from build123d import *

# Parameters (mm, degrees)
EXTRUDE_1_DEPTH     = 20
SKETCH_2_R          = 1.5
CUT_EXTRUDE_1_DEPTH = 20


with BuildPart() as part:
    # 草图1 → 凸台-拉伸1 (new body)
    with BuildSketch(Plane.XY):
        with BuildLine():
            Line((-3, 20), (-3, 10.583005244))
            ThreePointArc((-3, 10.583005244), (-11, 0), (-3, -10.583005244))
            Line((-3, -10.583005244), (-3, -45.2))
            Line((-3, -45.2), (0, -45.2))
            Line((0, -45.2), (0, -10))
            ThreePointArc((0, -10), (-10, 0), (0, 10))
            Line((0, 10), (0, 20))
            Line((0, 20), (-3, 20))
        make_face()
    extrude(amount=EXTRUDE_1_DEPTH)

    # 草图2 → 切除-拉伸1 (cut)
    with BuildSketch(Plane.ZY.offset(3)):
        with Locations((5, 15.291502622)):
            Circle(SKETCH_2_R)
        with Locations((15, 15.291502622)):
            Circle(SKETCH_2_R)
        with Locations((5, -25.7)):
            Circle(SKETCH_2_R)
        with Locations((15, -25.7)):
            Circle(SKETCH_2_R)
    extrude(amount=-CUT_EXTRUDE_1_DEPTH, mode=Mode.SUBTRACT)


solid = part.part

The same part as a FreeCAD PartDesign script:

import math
import FreeCAD as App
import Part
import Sketcher

doc = App.newDocument("Part")
body = doc.addObject("PartDesign::Body", "Body")

# Sketch on XY plane
sketch1 = body.newObject("Sketcher::SketchObject", "Sketch")
sketch1.AttachmentSupport = (doc.getObject("XY_Plane"), [""])
sketch1.MapMode = "FlatFace"
sketch1.addGeometry(Part.LineSegment(App.Vector(-3, 20, 0), App.Vector(-3, 10.583005, 0)), False)
sketch1.addGeometry(Part.ArcOfCircle(Part.Circle(App.Vector(0, 0, 0), App.Vector(0, 0, 1), 11), math.radians(105.82662), math.radians(254.17338)), False)
sketch1.addGeometry(Part.LineSegment(App.Vector(-3, -10.583005, 0), App.Vector(-3, -45.2, 0)), False)
sketch1.addGeometry(Part.LineSegment(App.Vector(-3, -45.2, 0), App.Vector(0, -45.2, 0)), False)
sketch1.addGeometry(Part.LineSegment(App.Vector(0, -45.2, 0), App.Vector(0, -10, 0)), False)
sketch1.addGeometry(Part.ArcOfCircle(Part.Circle(App.Vector(0, 0, 0), App.Vector(0, 0, 1), 10), math.radians(90), math.radians(270)), False)
sketch1.addGeometry(Part.LineSegment(App.Vector(0, 10, 0), App.Vector(0, 20, 0)), False)
sketch1.addGeometry(Part.LineSegment(App.Vector(0, 20, 0), App.Vector(-3, 20, 0)), False)
sketch1.addConstraint(Sketcher.Constraint("Coincident", 0, 2, 1, 1))
sketch1.addConstraint(Sketcher.Constraint("Coincident", 1, 2, 2, 1))
sketch1.addConstraint(Sketcher.Constraint("Coincident", 2, 2, 3, 1))
sketch1.addConstraint(Sketcher.Constraint("Coincident", 3, 2, 4, 1))
sketch1.addConstraint(Sketcher.Constraint("Coincident", 4, 2, 5, 2))
sketch1.addConstraint(Sketcher.Constraint("Coincident", 5, 1, 6, 1))
sketch1.addConstraint(Sketcher.Constraint("Coincident", 6, 2, 7, 1))
sketch1.addConstraint(Sketcher.Constraint("Coincident", 7, 2, 0, 1))
sketch1.addConstraint(Sketcher.Constraint("Vertical", 0))
sketch1.addConstraint(Sketcher.Constraint("Vertical", 2))
sketch1.addConstraint(Sketcher.Constraint("Horizontal", 3))
sketch1.addConstraint(Sketcher.Constraint("Vertical", 4))
sketch1.addConstraint(Sketcher.Constraint("Vertical", 6))
sketch1.addConstraint(Sketcher.Constraint("Horizontal", 7))
sketch1.addConstraint(Sketcher.Constraint("Coincident", 1, 3, -1, 1))
sketch1.addConstraint(Sketcher.Constraint("Coincident", 5, 3, -1, 1))
sketch1.addConstraint(Sketcher.Constraint("PointOnObject", 3, 2, -2))
sketch1.addConstraint(Sketcher.Constraint("PointOnObject", 5, 1, -2))
sketch1.addConstraint(Sketcher.Constraint("Vertical", 0, 2, 1, 2))
sketch1.addConstraint(Sketcher.Constraint("Radius", 1, 11.0))
sketch1.addConstraint(Sketcher.Constraint("Radius", 5, 10.0))
sketch1.addConstraint(Sketcher.Constraint("DistanceX", 3, 1, 3, 2, 3.0))
sketch1.addConstraint(Sketcher.Constraint("DistanceY", 6, 1, 6, 2, 10.0))
sketch1.addConstraint(Sketcher.Constraint("DistanceY", 4, 1, 4, 2, 35.2))
pad1 = body.newObject("PartDesign::Pad", "Pad")
pad1.Profile = sketch1
pad1.Length = 20

# Sketch on YZ plane
sketch2 = body.newObject("Sketcher::SketchObject", "Sketch001")
sketch2.AttachmentSupport = (doc.getObject("YZ_Plane"), [""])
sketch2.MapMode = "FlatFace"
sketch2.AttachmentOffset = App.Placement(App.Vector(0, 0, -3), App.Rotation())
sketch2.addGeometry(Part.Circle(App.Vector(15.291503, 5, 0), App.Vector(0, 0, 1), 1.5), False)
sketch2.addGeometry(Part.Circle(App.Vector(15.291503, 15, 0), App.Vector(0, 0, 1), 1.5), False)
sketch2.addGeometry(Part.Circle(App.Vector(-25.7, 5, 0), App.Vector(0, 0, 1), 1.5), False)
sketch2.addGeometry(Part.Circle(App.Vector(-25.7, 15, 0), App.Vector(0, 0, 1), 1.5), False)
sketch2.addConstraint(Sketcher.Constraint("Equal", 0, 1))
sketch2.addConstraint(Sketcher.Constraint("Equal", 1, 2))
sketch2.addConstraint(Sketcher.Constraint("Equal", 2, 3))
sketch2.addConstraint(Sketcher.Constraint("Horizontal", 0, 3, 2, 3))
sketch2.addConstraint(Sketcher.Constraint("Horizontal", 1, 3, 3, 3))
sketch2.addConstraint(Sketcher.Constraint("Vertical", 0, 3, 1, 3))
sketch2.addConstraint(Sketcher.Constraint("Vertical", 2, 3, 3, 3))
sketch2.addConstraint(Sketcher.Constraint("Diameter", 0, 3.0))
sketch2.addConstraint(Sketcher.Constraint("DistanceY", -1, 1, 0, 3, 5.0))
sketch2.addConstraint(Sketcher.Constraint("DistanceY", -1, 1, 1, 3, 15.0))
sketch2.addConstraint(Sketcher.Constraint("DistanceX", 2, 3, -1, 1, 25.7))
sketch2.addConstraint(Sketcher.Constraint("DistanceX", -1, 1, 0, 3, 15.291503))
pocket1 = body.newObject("PartDesign::Pocket", "Pocket")
pocket1.Profile = sketch2
pocket1.Length = 20
pocket1.Reversed = True

doc.recompute()
